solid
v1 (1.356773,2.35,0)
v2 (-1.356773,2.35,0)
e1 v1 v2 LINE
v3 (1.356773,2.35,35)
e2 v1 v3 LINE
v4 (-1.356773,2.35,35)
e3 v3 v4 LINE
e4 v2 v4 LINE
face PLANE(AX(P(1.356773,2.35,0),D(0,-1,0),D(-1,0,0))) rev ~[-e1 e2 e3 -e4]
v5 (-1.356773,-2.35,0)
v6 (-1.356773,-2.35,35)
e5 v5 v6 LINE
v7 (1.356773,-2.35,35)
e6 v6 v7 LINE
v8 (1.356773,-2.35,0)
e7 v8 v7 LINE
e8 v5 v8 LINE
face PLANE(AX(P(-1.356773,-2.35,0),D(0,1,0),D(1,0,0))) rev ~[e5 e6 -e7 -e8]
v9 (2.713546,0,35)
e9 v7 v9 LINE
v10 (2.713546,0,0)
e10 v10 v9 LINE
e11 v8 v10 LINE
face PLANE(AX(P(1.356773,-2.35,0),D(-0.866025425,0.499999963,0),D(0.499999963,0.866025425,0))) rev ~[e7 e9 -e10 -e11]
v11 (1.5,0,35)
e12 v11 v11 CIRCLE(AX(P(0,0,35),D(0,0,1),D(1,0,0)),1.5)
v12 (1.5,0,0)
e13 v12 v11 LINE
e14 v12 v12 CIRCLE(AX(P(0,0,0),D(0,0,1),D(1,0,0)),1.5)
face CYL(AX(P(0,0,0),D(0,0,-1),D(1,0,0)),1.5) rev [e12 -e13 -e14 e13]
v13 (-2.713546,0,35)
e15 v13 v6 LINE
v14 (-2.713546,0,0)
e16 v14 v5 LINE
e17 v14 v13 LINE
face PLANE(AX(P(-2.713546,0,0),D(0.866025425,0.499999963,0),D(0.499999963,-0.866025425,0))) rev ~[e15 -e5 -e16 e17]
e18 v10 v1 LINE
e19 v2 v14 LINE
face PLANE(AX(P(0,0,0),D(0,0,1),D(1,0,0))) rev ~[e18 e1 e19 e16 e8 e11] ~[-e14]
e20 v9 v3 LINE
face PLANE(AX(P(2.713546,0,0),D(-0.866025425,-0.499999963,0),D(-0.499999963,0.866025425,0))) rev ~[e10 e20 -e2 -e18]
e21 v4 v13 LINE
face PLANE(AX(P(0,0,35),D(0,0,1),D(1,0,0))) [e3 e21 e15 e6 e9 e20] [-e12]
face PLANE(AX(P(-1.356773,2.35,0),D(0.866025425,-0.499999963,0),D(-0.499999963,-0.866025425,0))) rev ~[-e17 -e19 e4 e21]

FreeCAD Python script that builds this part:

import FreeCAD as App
import Part
import Sketcher
from FreeCAD import Vector
Q = App.Units.Quantity


def add_polygon(sketch, points):
    """Adds a closed chain of lines whose ends are joined by coincident constraints."""
    first, n = sketch.GeometryCount, len(points)
    for a, b in zip(points, points[1:] + points[:1]):
        sketch.addGeometry(Part.LineSegment(App.Vector(*a, 0), App.Vector(*b, 0)), False)
    for i in range(n):
        sketch.addConstraint(Sketcher.Constraint("Coincident", first + i, 2, first + (i + 1) % n, 1))

doc = App.newDocument("Part")
params = doc.addObject("Spreadsheet::Sheet", "Params")
for row, (alias, value) in enumerate([
    ("sketch1_diameter", "3 mm"),
    ("pad1_length", "35 mm"),
], start=1):
    params.set(f"A{row}", alias)
    params.set(f"B{row}", "=" + value)
    params.setAlias(f"B{row}", alias)

body = doc.addObject("PartDesign::Body", "Body")

sketch1 = body.newObject("Sketcher::SketchObject", "Sketch")
sketch1.AttachmentSupport = (doc.getObject("XY_Plane"), [""])
sketch1.MapMode = "FlatFace"
add_polygon(sketch1, [(1.356773, -2.35), (2.713546, 0), (1.356773, 2.35), (-1.356773, 2.35), (-2.713546, 0), (-1.356773, -2.35)])
sketch1.addGeometry(Part.Circle(Vector(0, 0, 0), Vector(0, 0, 1), 1.5), False)
sketch1.addConstraint([
    Sketcher.Constraint("Horizontal", 2),
    Sketcher.Constraint("Horizontal", 5),
    Sketcher.Constraint("Coincident", 6, 3, -1, 1),
    Sketcher.Constraint("Symmetric", 0, 2, 3, 2, -1, 1),
    Sketcher.Constraint("Symmetric", 1, 2, 4, 2, -1, 1),
    Sketcher.Constraint("PointOnObject", 0, 2, -1),
    Sketcher.Constraint("Parallel", 0, 3),
    Sketcher.Constraint("Vertical", 2, 2, 4, 2),
    Sketcher.Constraint("Diameter", 6, Q("3 mm")),
    Sketcher.Constraint("Angle", 0, Q("60.000002 deg")),
    Sketcher.Constraint("DistanceY", 4, 2, 2, 2, Q("4.7 mm")),
    Sketcher.Constraint("DistanceX", 2, 2, 2, 1, Q("2.713546 mm")),
])
sketch1.setExpression("Constraints[14]", "Params.sketch1_diameter")
pad1 = body.newObject("PartDesign::Pad", "Pad")
pad1.Profile = sketch1
pad1.setExpression("Length", "Params.pad1_length")

doc.recompute()
